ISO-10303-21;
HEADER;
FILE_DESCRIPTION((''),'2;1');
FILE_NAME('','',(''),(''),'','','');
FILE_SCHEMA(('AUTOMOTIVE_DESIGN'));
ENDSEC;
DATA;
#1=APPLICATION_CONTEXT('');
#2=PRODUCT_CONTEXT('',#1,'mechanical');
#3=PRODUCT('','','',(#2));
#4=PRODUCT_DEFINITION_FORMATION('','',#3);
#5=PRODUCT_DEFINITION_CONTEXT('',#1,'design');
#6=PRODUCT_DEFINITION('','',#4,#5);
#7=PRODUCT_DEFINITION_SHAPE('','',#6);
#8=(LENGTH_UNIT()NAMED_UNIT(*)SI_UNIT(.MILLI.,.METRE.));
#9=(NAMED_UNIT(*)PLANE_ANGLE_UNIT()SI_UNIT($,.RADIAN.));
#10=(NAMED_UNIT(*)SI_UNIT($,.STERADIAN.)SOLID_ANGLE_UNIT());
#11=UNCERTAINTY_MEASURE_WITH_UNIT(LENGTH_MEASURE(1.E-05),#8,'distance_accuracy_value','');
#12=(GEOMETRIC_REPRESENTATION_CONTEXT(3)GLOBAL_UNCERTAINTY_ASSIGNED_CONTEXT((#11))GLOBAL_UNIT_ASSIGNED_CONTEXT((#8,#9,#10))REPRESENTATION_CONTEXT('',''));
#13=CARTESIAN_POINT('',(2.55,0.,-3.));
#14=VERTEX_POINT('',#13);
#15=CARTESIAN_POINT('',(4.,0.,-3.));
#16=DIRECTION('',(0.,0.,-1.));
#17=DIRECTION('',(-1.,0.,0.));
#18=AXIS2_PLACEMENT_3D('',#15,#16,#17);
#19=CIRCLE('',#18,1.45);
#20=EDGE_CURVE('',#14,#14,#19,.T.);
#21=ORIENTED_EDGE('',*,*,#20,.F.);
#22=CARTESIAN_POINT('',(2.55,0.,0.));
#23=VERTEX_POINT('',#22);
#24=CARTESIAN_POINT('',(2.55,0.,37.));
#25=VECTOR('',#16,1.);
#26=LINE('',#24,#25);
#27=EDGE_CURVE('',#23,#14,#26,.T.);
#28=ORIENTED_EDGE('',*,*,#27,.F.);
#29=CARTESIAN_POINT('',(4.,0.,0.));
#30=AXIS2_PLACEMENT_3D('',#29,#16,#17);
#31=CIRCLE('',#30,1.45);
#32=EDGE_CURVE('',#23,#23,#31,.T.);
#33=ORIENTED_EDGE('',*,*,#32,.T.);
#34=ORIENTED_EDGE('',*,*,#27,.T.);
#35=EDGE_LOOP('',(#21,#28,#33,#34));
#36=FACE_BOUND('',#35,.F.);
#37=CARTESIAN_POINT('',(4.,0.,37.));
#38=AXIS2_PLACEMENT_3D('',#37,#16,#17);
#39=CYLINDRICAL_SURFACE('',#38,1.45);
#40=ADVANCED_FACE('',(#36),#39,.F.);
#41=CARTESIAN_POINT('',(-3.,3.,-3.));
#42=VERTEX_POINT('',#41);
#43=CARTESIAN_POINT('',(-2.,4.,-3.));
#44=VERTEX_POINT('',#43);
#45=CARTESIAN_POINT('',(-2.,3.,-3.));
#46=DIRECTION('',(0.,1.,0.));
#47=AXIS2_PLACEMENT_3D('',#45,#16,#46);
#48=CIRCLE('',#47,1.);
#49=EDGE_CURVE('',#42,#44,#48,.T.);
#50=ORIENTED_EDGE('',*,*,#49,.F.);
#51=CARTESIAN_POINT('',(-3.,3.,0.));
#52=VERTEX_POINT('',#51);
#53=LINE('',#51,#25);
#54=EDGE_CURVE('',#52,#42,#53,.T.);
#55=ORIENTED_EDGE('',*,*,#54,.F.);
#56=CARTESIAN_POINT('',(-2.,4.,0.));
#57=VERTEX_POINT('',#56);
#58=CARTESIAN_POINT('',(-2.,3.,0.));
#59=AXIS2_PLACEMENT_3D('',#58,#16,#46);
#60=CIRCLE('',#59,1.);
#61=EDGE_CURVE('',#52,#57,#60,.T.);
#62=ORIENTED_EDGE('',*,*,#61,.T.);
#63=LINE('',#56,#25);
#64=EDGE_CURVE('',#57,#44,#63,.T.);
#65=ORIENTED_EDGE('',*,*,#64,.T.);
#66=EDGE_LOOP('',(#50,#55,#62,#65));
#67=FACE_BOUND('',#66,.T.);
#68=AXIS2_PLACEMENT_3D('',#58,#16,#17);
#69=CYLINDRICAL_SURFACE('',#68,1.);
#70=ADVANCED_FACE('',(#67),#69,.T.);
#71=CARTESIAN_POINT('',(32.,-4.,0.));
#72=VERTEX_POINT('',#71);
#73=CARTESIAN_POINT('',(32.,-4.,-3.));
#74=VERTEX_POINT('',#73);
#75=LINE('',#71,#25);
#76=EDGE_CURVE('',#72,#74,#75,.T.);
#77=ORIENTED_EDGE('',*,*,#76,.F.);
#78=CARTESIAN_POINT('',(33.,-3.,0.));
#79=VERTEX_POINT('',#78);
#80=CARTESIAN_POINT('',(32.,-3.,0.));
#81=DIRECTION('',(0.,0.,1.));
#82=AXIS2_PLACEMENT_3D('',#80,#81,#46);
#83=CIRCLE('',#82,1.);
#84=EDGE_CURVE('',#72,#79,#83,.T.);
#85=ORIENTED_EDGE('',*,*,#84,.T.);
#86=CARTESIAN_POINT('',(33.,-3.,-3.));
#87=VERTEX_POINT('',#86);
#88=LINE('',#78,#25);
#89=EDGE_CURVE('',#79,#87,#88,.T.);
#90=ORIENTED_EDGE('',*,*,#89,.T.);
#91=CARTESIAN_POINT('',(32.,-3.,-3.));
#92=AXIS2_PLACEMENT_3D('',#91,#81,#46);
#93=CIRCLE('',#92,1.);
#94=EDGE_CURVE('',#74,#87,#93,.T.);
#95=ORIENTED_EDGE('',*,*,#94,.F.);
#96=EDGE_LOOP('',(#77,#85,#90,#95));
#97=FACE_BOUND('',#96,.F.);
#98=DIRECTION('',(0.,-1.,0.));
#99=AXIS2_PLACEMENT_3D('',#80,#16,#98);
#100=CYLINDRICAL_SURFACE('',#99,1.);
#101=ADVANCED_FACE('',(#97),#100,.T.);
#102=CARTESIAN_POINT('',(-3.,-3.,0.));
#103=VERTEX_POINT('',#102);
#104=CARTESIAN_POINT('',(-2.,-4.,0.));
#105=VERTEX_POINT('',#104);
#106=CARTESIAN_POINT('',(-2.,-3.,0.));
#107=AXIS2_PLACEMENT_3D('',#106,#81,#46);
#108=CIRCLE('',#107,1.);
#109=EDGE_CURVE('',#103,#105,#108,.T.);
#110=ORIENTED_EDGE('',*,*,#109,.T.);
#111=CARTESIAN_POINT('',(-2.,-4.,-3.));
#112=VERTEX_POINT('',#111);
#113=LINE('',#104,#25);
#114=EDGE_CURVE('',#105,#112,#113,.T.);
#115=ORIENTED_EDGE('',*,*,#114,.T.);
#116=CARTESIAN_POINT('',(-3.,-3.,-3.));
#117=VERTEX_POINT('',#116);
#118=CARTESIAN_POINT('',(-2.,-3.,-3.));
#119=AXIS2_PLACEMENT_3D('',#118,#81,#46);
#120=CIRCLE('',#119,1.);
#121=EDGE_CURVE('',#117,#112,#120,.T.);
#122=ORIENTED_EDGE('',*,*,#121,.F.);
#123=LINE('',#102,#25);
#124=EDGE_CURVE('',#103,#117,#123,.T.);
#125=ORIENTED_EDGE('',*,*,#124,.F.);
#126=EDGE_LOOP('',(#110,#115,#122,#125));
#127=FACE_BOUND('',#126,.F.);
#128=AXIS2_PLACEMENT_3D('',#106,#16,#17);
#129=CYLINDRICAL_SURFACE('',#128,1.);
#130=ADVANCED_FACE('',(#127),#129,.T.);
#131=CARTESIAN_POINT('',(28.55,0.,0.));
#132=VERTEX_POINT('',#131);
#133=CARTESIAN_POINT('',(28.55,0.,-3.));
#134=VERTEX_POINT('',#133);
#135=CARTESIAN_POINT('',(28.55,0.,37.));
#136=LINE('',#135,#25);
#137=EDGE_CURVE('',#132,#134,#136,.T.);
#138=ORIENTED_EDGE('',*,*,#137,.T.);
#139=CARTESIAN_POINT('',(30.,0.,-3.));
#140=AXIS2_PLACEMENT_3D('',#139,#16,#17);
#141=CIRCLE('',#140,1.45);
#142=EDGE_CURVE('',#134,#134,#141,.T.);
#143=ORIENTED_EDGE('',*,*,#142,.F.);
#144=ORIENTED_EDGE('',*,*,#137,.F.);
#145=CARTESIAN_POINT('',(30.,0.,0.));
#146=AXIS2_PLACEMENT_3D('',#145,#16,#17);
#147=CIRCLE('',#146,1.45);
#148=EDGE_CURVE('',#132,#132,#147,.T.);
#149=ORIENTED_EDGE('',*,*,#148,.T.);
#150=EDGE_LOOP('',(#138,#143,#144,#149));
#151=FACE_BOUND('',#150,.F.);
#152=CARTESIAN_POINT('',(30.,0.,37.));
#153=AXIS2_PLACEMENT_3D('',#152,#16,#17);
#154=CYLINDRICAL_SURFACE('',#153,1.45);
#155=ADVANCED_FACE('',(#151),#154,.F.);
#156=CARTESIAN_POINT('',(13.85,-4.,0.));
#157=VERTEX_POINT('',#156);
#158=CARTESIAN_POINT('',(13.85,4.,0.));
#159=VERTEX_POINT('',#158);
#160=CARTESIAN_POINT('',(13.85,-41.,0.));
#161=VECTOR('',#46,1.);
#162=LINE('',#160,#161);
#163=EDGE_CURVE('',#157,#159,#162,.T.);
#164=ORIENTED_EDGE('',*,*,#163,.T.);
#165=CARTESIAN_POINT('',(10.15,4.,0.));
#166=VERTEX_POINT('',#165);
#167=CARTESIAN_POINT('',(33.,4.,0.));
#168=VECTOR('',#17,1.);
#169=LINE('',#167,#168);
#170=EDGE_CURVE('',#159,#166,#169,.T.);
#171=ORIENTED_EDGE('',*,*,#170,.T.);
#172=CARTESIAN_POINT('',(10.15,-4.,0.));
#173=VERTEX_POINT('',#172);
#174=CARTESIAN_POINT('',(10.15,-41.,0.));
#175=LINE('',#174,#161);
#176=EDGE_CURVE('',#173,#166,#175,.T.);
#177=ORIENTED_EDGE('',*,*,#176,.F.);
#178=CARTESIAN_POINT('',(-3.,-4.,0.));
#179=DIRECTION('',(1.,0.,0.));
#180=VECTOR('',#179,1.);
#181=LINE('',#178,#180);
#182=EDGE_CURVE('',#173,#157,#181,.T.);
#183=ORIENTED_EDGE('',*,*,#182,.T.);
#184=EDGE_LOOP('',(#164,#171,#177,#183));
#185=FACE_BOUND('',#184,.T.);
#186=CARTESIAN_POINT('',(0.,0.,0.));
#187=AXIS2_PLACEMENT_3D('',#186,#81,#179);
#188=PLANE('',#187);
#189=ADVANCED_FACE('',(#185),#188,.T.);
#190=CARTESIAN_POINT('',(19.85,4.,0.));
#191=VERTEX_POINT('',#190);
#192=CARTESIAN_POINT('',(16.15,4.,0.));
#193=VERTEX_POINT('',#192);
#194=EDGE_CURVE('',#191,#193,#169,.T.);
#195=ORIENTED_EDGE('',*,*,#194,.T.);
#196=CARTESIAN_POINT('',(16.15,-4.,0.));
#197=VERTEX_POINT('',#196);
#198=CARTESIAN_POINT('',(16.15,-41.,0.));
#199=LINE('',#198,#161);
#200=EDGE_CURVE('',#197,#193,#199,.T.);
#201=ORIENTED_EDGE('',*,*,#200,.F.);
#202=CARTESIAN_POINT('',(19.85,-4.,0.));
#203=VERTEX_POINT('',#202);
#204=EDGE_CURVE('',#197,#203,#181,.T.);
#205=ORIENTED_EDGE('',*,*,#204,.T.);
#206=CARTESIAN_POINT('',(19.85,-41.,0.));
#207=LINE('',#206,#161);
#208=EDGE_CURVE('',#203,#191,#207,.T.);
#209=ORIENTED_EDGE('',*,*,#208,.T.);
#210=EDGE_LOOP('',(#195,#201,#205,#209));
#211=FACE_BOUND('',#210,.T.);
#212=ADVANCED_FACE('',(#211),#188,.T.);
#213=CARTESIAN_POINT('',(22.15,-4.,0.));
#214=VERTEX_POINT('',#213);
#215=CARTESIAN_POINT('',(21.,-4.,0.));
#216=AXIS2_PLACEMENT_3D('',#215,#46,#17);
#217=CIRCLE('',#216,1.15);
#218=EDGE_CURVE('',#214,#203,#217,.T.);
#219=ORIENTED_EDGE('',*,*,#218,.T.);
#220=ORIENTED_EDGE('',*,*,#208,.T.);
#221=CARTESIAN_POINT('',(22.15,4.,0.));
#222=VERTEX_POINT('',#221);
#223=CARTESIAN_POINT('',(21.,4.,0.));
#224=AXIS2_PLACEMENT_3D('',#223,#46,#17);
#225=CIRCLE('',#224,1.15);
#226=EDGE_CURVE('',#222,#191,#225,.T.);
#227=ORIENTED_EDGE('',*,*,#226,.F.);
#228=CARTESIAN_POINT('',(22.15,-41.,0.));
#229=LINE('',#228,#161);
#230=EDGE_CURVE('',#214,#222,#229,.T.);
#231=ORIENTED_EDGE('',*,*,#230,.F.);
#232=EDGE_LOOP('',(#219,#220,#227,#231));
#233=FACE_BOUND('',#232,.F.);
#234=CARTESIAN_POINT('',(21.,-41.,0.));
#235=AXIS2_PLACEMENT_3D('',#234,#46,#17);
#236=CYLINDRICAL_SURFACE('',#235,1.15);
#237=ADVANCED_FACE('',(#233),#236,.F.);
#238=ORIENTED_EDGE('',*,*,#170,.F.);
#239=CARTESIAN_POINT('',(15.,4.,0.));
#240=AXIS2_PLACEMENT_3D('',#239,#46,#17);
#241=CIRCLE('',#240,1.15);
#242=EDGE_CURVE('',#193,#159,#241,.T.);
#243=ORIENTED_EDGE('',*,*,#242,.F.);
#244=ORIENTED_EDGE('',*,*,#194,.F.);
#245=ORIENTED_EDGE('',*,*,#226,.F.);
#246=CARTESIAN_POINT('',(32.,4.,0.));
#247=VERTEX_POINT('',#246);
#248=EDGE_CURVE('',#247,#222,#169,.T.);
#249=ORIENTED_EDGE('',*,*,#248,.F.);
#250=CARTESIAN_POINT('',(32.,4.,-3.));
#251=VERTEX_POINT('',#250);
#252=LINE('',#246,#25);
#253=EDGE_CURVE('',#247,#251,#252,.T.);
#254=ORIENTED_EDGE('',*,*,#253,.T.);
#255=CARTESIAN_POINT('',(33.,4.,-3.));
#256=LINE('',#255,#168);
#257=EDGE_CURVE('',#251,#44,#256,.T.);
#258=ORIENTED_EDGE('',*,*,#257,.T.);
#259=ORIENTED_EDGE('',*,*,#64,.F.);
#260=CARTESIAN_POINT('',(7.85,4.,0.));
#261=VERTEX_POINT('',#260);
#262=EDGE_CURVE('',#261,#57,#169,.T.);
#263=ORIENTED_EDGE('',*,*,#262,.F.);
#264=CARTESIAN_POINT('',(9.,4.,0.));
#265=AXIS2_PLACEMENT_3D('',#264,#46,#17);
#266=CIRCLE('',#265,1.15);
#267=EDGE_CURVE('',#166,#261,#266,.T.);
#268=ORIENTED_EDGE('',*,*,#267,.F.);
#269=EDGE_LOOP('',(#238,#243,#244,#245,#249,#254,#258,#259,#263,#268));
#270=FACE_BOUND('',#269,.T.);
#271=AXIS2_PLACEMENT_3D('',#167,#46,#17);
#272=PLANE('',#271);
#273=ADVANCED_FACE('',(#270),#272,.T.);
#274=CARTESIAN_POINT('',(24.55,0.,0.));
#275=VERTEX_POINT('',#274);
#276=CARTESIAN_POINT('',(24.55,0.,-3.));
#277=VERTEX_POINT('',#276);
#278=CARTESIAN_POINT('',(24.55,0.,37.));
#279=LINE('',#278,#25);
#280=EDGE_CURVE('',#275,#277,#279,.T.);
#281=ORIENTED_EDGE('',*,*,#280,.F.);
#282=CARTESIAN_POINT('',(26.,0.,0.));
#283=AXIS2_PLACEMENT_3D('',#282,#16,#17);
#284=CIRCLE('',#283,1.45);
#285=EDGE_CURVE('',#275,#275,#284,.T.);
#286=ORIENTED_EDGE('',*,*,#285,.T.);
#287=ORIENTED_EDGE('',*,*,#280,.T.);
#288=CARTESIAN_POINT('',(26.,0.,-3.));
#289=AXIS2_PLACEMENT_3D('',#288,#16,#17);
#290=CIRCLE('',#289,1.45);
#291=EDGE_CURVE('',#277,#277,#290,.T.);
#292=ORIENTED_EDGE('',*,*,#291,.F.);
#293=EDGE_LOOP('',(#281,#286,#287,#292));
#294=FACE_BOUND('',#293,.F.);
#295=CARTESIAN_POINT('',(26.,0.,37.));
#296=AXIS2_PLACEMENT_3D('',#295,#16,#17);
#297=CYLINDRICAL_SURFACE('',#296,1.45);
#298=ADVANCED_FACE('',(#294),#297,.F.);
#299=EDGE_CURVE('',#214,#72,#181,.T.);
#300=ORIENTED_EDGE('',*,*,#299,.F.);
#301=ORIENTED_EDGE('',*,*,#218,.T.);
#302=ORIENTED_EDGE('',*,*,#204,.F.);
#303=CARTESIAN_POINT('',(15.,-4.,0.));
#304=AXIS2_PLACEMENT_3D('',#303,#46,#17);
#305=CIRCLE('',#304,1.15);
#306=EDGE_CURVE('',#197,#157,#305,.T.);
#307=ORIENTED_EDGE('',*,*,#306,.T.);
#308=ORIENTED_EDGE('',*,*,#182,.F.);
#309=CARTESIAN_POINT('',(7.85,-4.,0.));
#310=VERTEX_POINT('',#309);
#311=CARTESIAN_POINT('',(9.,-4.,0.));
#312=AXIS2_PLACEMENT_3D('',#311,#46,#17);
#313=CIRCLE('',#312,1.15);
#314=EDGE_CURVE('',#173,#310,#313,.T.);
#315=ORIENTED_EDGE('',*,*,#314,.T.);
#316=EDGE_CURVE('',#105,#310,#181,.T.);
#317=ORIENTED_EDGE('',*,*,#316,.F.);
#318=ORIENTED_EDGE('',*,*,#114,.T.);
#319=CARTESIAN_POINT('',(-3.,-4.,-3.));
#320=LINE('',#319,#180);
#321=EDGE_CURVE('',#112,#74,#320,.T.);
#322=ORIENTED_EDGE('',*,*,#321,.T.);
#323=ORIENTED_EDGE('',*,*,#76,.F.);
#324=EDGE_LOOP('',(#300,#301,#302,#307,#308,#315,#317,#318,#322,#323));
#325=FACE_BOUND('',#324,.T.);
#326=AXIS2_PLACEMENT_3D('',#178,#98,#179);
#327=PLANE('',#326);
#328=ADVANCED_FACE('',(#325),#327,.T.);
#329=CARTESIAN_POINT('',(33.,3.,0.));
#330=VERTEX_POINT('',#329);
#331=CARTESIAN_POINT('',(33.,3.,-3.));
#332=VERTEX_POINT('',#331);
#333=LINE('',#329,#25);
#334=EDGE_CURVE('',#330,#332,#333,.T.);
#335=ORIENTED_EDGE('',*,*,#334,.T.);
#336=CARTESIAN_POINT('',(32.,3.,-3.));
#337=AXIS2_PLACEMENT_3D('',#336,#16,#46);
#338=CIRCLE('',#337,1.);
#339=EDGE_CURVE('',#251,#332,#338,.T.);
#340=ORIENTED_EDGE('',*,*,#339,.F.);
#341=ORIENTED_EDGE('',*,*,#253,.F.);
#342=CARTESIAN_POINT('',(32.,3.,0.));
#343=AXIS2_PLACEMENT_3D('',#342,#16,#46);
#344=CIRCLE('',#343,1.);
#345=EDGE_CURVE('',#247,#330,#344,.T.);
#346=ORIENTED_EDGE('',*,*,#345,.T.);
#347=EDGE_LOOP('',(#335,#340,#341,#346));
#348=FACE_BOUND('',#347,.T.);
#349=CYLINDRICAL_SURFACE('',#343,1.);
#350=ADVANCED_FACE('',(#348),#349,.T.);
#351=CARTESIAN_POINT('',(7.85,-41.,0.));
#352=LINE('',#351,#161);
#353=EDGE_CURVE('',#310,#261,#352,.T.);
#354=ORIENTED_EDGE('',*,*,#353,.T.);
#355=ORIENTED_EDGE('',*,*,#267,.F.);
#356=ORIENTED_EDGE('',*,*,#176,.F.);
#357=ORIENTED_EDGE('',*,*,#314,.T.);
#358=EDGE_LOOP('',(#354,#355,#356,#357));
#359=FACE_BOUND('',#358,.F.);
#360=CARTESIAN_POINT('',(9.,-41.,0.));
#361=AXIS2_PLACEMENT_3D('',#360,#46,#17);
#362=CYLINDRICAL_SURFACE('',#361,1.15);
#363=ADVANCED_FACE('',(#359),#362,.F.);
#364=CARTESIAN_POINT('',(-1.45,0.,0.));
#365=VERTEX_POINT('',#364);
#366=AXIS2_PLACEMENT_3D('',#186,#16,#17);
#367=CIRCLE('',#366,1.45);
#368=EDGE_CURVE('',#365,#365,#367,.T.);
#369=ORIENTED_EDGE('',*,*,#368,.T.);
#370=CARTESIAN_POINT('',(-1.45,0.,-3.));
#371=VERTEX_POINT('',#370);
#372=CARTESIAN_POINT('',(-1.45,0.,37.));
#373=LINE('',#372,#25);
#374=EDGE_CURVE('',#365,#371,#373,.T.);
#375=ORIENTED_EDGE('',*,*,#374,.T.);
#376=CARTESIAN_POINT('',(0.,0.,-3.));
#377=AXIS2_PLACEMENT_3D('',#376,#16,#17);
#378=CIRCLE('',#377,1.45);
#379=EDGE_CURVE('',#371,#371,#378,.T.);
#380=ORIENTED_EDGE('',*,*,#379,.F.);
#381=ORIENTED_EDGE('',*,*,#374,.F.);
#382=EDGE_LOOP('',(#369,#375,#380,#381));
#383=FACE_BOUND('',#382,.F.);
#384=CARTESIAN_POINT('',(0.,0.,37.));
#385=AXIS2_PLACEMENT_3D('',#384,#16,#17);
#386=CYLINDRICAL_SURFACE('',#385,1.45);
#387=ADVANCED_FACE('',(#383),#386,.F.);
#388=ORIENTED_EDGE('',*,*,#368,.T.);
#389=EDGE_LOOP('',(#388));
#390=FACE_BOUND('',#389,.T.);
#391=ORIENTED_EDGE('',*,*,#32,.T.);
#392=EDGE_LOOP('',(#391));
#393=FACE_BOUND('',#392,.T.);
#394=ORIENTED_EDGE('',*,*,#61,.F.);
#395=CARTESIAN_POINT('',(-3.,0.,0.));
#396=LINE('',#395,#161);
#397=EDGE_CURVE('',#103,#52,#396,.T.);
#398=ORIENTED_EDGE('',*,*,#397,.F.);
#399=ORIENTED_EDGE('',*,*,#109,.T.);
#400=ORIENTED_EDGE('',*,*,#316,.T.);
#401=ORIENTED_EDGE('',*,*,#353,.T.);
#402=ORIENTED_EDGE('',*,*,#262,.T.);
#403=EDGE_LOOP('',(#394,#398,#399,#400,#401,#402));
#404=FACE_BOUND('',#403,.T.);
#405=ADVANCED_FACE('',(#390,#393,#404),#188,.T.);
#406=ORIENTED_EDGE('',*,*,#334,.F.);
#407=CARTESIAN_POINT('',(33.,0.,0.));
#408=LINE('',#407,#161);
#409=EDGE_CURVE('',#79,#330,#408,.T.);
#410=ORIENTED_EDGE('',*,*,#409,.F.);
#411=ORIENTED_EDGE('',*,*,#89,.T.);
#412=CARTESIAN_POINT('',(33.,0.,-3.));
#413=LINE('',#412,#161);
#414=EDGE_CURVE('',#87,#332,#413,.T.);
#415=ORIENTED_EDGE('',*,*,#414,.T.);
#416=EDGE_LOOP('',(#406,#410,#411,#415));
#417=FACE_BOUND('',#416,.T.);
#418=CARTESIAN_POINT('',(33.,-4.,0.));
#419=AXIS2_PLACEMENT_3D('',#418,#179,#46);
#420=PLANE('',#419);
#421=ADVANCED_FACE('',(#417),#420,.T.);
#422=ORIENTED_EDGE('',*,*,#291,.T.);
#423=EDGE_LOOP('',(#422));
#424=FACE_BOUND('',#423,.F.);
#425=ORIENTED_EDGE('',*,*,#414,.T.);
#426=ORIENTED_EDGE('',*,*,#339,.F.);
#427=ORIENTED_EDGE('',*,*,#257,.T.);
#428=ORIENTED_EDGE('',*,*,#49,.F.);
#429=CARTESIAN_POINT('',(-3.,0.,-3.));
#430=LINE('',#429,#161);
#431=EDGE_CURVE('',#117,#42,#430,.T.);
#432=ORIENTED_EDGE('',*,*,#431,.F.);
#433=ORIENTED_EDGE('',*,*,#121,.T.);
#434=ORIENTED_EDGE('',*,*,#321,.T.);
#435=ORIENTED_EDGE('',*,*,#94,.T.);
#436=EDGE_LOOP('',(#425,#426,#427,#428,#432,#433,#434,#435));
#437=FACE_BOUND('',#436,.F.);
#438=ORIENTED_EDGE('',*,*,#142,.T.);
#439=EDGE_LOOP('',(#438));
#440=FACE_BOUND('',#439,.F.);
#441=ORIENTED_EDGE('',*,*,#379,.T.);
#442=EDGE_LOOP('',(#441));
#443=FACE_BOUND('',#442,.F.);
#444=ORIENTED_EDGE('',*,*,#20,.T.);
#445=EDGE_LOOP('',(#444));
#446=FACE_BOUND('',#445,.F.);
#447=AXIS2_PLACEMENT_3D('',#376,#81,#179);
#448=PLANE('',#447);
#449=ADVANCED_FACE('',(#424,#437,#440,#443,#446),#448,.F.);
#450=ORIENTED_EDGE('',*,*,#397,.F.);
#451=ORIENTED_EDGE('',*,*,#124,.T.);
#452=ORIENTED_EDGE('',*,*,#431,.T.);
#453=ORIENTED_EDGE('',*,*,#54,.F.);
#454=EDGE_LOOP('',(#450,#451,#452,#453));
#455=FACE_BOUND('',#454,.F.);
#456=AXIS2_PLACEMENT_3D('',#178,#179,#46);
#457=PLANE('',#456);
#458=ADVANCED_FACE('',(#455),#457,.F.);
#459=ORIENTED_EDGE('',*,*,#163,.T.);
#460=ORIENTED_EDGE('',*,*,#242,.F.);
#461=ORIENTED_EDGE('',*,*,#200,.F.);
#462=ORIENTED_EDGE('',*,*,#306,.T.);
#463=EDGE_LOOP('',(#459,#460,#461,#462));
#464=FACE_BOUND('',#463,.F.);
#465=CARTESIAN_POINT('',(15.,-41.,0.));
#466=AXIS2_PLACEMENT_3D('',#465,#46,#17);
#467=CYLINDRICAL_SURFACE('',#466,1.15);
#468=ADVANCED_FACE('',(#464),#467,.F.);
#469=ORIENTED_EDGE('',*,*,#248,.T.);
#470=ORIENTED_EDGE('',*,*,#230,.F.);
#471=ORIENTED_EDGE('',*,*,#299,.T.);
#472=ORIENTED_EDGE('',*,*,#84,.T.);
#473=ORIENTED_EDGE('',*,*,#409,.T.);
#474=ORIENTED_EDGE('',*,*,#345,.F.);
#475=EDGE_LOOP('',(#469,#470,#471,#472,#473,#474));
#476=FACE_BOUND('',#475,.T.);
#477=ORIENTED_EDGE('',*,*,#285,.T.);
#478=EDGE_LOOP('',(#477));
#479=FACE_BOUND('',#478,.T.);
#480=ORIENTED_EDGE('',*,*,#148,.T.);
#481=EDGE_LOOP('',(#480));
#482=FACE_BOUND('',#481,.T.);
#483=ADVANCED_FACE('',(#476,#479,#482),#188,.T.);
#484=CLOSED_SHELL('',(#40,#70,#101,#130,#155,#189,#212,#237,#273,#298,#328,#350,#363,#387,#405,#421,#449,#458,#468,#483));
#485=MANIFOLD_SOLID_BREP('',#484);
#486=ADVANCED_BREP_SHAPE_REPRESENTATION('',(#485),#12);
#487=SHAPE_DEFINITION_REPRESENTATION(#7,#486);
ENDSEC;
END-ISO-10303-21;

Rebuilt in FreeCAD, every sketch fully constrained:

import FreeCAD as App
import Part
import Sketcher

V = App.Vector


def edges_at(feature, points):
    """Names of the edges that pass closest to the given points."""
    edges = feature.Shape.Edges
    near = lambda p: min(range(len(edges)), key=lambda i: edges[i].distToShape(Part.Vertex(*p))[0])
    return sorted({f"Edge{near(p) + 1}" for p in points})


def add_polygon(sketch, points):
    """Adds a closed chain of lines whose ends are joined by coincident constraints."""
    first, n = sketch.GeometryCount, len(points)
    for a, b in zip(points, points[1:] + points[:1]):
        sketch.addGeometry(Part.LineSegment(App.Vector(*a, 0), App.Vector(*b, 0)), False)
    for i in range(n):
        sketch.addConstraint(Sketcher.Constraint("Coincident", first + i, 2, first + (i + 1) % n, 1))

doc = App.newDocument("Part")
body = doc.addObject("PartDesign::Body", "Body")

sketch1 = doc.addObject("Sketcher::SketchObject", "Sketch")
body.addObject(sketch1)
sketch1.AttachmentSupport = (doc.XY_Plane, [""])
sketch1.MapMode = "FlatFace"
add_polygon(sketch1, [(-3, 4), (-3, -4), (33, -4), (33, 4)])
sketch1.addConstraint([
    Sketcher.Constraint("Vertical", 0),
    Sketcher.Constraint("Horizontal", 1),
    Sketcher.Constraint("Vertical", 2),
    Sketcher.Constraint("Horizontal", 3),
    Sketcher.Constraint("DistanceX", 1, 1, 1, 2, 36.0),
    Sketcher.Constraint("DistanceY", 0, 2, 0, 1, 8.0),
    Sketcher.Constraint("DistanceX", 0, 2, -1, 1, 3.0),
    Sketcher.Constraint("DistanceY", 0, 2, -1, 1, 4.0),
])
pad1 = doc.addObject("PartDesign::Pad", "Pad")
body.addObject(pad1)
pad1.Profile = sketch1
pad1.Length = 3
pad1.Reversed = True

sketch2 = doc.addObject("Sketcher::SketchObject", "Sketch001")
body.addObject(sketch2)
sketch2.AttachmentSupport = (doc.XY_Plane, [""])
sketch2.MapMode = "FlatFace"
sketch2.addGeometry([
    Part.Circle(V(0, 0, 0), V(0, 0, 1), 1.4),
    Part.Circle(V(4, 0, 0), V(0, 0, 1), 1.4),
    Part.Circle(V(26, 0, 0), V(0, 0, 1), 1.4),
    Part.Circle(V(30, 0, 0), V(0, 0, 1), 1.4),
], False)
sketch2.addConstraint([
    Sketcher.Constraint("Coincident", 0, 3, -1, 1),
    Sketcher.Constraint("Equal", 0, 1),
    Sketcher.Constraint("Equal", 1, 2),
    Sketcher.Constraint("Equal", 2, 3),
    Sketcher.Constraint("PointOnObject", 1, 3, -1),
    Sketcher.Constraint("PointOnObject", 2, 3, -1),
    Sketcher.Constraint("PointOnObject", 3, 3, -1),
    Sketcher.Constraint("Diameter", 0, 2.9),
    Sketcher.Constraint("DistanceX", -1, 1, 1, 3, 4.0),
    Sketcher.Constraint("DistanceX", -1, 1, 2, 3, 26.0),
    Sketcher.Constraint("DistanceX", -1, 1, 3, 3, 30.0),
])
doc.recompute()
hole = doc.addObject("PartDesign::Hole", "Hole")
body.addObject(hole)
hole.Profile = sketch2
hole.ThreadType = "None"
hole.Diameter = 2.9
hole.DepthType = "ThroughAll"

sketch3 = doc.addObject("Sketcher::SketchObject", "Sketch002")
body.addObject(sketch3)
sketch3.AttachmentSupport = (doc.XZ_Plane, [""])
sketch3.MapMode = "FlatFace"
sketch3.AttachmentOffset = App.Placement(V(0, 0, 4), App.Rotation())
sketch3.addGeometry([
    Part.Circle(V(9, 0, 0), V(0, 0, 1), 1.1),
    Part.Circle(V(21, 0, 0), V(0, 0, 1), 1.1),
    Part.Circle(V(15, 0, 0), V(0, 0, 1), 1.1),
], False)
sketch3.addConstraint([
    Sketcher.Constraint("Equal", 0, 1),
    Sketcher.Constraint("Equal", 1, 2),
    Sketcher.Constraint("PointOnObject", 0, 3, -1),
    Sketcher.Constraint("PointOnObject", 1, 3, -1),
    Sketcher.Constraint("PointOnObject", 2, 3, -1),
    Sketcher.Constraint("Diameter", 0, 2.3),
    Sketcher.Constraint("DistanceX", -1, 1, 0, 3, 9.0),
    Sketcher.Constraint("DistanceX", -1, 1, 1, 3, 21.0),
    Sketcher.Constraint("DistanceX", -1, 1, 2, 3, 15.0),
])
doc.recompute()
hole2 = doc.addObject("PartDesign::Hole", "Hole001")
body.addObject(hole2)
hole2.Profile = sketch3
hole2.ThreadType = "None"
hole2.Diameter = 2.3
hole2.DepthType = "ThroughAll"
doc.recompute()

fillet = doc.addObject("PartDesign::Fillet", "Fillet")
body.addObject(fillet)
fillet.Base = (hole2, edges_at(hole2, [
    (-3, -4, -1.5),
    (33, -4, -1.5),
    (33, 4, -1.5),
    (-3, 4, -1.5),
]))
fillet.Radius = 1

doc.recompute()
